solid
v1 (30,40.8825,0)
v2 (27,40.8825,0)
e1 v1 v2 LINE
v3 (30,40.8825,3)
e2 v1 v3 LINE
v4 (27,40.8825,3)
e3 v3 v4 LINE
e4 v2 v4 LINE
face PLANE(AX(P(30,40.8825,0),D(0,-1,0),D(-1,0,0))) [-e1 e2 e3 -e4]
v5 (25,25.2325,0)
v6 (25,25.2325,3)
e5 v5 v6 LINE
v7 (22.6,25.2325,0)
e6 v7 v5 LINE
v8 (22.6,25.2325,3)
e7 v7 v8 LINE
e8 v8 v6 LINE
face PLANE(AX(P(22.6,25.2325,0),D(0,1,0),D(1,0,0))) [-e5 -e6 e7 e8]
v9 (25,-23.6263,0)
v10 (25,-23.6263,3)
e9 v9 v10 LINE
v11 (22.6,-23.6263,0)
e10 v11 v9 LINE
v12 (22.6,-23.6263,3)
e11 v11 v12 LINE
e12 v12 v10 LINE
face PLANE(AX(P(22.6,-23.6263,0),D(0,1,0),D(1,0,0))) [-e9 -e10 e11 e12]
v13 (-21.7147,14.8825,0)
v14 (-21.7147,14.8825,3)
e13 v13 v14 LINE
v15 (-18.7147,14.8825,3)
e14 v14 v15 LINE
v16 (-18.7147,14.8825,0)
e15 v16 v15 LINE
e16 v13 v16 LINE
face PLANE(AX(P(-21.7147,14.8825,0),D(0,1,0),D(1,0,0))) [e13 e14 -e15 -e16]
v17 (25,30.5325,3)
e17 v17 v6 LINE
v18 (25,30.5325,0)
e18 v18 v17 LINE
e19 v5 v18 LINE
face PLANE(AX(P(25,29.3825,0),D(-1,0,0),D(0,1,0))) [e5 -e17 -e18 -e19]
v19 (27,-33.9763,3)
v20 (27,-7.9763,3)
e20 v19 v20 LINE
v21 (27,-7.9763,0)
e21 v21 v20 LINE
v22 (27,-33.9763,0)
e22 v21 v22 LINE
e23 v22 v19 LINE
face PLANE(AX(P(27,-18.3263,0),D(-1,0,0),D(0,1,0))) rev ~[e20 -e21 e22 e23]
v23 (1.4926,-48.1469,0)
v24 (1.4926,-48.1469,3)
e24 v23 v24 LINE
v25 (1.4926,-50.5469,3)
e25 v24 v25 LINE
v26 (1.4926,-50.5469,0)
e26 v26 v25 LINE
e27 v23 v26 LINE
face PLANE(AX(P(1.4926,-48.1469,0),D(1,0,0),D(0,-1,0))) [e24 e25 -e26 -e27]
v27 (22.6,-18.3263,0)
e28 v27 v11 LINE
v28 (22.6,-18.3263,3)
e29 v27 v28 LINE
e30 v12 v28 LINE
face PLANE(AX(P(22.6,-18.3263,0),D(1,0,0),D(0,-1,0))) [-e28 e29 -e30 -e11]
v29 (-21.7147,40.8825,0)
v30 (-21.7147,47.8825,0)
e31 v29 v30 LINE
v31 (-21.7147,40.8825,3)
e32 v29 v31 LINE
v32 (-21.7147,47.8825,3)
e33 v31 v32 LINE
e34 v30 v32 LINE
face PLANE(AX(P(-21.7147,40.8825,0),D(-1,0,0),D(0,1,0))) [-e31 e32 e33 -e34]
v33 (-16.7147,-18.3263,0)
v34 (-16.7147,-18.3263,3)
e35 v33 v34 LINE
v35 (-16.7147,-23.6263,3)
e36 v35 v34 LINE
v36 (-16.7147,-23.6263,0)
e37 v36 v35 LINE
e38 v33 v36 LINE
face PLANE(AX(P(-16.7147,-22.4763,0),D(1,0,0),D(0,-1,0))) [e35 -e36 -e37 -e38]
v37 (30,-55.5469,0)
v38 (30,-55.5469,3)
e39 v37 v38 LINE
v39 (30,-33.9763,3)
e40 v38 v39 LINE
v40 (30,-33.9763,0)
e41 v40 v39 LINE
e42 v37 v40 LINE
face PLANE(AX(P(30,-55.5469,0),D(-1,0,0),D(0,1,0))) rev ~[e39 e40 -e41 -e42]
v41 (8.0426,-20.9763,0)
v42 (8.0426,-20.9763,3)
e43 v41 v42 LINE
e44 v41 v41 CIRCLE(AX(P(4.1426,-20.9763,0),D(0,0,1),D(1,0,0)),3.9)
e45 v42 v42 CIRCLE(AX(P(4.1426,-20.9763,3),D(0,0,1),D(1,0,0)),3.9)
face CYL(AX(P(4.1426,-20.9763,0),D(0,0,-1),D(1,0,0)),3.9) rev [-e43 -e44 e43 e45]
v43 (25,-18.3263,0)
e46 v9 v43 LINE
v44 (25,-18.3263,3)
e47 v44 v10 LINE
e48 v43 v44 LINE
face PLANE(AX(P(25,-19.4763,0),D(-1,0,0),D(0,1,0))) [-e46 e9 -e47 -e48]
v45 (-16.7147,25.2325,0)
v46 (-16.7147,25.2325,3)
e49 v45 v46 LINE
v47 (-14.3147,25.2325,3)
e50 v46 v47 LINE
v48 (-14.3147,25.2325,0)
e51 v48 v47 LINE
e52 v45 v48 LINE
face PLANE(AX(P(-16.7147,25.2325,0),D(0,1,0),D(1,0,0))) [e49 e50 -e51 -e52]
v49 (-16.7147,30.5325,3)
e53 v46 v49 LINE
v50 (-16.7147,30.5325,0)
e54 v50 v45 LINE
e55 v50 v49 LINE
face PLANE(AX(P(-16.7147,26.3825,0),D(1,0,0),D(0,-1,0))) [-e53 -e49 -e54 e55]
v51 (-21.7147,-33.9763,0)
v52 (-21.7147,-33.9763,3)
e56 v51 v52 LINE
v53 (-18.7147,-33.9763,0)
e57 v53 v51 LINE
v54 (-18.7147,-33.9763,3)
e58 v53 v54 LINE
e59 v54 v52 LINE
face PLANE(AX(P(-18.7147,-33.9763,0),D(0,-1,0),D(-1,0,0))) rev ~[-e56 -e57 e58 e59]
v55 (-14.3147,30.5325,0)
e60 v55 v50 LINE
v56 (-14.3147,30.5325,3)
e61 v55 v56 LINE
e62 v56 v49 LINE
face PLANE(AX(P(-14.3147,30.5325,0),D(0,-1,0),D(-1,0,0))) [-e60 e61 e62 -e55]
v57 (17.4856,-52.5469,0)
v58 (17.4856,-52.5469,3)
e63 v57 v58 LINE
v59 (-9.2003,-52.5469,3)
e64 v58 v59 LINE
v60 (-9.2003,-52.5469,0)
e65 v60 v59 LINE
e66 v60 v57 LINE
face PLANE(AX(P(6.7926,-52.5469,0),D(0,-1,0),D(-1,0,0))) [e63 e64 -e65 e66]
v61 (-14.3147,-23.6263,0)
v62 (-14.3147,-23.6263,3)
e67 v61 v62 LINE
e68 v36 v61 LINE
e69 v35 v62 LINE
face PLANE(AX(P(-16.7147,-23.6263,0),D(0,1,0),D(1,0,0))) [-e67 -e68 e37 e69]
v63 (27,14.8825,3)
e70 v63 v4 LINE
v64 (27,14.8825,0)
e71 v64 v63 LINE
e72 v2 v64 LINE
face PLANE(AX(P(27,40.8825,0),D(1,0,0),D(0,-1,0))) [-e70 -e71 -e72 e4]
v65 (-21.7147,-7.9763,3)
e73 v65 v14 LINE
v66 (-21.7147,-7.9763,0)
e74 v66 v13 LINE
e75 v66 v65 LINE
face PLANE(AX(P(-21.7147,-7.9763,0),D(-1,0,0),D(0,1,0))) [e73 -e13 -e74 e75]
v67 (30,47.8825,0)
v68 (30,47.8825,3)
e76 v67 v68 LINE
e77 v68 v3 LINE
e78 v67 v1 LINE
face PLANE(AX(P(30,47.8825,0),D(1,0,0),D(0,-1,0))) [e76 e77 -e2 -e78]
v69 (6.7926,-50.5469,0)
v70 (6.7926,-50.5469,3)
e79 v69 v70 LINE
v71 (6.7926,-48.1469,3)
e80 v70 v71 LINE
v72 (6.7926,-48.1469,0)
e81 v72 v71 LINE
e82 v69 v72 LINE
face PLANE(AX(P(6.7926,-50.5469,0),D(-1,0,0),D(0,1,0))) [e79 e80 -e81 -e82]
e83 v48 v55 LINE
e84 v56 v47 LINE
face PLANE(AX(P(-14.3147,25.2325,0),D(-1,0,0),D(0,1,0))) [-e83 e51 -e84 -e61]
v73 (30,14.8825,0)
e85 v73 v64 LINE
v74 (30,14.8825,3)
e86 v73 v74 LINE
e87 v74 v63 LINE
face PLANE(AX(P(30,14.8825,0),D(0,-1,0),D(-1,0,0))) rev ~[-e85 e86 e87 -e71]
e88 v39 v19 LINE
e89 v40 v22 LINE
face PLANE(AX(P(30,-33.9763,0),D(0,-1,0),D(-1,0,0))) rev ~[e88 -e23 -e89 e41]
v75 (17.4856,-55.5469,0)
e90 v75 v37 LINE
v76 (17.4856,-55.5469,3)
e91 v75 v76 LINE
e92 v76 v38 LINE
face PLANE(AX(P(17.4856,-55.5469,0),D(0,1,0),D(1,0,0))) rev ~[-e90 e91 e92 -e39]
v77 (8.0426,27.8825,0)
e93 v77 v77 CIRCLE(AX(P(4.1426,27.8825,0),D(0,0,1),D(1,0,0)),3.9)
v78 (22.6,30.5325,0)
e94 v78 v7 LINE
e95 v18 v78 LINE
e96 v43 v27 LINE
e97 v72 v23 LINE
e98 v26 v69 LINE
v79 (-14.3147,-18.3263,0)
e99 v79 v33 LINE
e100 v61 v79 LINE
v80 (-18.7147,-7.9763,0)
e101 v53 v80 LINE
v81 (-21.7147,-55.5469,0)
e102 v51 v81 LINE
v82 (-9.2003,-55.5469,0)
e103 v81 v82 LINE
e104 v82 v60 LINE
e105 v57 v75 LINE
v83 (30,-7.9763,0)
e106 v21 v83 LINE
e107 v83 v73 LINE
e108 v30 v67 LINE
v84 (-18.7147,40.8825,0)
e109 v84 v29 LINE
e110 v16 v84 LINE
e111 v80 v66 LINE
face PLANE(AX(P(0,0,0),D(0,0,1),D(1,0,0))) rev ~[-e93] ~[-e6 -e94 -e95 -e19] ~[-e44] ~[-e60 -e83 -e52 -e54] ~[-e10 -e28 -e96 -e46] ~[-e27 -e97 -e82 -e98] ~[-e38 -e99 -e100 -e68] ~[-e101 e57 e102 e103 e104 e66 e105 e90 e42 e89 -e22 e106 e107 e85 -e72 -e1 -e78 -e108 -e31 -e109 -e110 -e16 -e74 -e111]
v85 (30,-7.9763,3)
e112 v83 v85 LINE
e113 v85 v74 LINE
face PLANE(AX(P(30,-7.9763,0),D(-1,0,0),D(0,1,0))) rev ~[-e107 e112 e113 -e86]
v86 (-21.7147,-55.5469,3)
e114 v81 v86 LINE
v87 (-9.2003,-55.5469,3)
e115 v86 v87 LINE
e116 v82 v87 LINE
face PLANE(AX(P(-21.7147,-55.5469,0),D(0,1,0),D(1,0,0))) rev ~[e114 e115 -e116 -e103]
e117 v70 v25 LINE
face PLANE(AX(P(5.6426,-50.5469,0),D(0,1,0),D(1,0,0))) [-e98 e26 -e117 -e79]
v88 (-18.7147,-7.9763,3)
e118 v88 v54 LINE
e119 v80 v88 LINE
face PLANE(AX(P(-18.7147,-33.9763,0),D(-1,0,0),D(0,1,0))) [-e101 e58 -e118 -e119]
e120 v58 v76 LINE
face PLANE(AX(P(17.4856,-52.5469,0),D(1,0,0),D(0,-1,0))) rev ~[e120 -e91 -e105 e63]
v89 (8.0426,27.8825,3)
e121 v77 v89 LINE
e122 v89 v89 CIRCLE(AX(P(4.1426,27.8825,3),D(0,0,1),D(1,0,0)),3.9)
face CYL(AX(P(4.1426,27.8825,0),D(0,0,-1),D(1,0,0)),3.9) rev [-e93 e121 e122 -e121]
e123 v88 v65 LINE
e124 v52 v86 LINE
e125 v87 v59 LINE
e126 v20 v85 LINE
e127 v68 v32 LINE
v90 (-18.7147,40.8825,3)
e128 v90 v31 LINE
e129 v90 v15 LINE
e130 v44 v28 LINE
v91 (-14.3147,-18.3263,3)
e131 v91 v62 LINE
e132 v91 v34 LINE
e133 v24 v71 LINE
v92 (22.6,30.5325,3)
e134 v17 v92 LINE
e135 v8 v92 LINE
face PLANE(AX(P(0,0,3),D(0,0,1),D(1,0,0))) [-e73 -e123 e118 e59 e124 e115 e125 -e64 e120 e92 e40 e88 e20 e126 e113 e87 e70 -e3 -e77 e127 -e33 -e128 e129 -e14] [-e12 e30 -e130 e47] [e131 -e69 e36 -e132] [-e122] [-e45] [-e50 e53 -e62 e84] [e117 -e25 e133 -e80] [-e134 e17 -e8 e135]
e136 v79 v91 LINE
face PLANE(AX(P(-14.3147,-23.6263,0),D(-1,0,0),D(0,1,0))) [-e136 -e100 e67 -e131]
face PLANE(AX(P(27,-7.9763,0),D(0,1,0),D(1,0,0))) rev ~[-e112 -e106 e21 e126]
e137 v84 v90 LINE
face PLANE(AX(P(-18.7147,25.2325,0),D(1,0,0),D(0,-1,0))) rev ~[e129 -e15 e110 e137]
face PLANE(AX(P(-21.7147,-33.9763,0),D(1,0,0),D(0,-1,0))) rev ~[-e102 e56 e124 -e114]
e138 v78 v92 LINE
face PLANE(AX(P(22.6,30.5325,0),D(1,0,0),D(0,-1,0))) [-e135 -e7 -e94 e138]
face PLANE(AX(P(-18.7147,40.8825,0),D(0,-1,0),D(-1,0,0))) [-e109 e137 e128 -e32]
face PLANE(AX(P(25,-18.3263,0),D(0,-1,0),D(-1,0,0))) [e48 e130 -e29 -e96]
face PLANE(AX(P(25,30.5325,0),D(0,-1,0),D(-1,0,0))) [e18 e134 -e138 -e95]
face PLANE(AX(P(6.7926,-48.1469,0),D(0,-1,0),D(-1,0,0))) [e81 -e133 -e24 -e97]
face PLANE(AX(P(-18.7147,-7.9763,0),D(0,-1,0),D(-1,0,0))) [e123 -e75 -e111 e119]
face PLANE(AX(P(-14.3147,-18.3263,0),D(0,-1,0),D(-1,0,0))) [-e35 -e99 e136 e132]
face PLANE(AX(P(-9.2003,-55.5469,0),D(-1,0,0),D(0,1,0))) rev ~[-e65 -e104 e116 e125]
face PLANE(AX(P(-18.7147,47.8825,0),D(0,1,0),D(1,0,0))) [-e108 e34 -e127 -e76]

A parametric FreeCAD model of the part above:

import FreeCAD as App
import Part
import Sketcher
from FreeCAD import Vector


def add_polygon(sketch, points):
    """Adds a closed chain of lines whose ends are joined by coincident constraints."""
    first, n = sketch.GeometryCount, len(points)
    for a, b in zip(points, points[1:] + points[:1]):
        sketch.addGeometry(Part.LineSegment(App.Vector(*a, 0), App.Vector(*b, 0)), False)
    for i in range(n):
        sketch.addConstraint(Sketcher.Constraint("Coincident", first + i, 2, first + (i + 1) % n, 1))

doc = App.newDocument("Part")
body = doc.addObject("PartDesign::Body", "Body")

# Sketch on XY plane
sketch1 = body.newObject("Sketcher::SketchObject", "Sketch")
sketch1.AttachmentSupport = (doc.getObject("XY_Plane"), [""])
sketch1.MapMode = "FlatFace"
add_polygon(sketch1, [(17.5, -52.5), (17.5, -55.5), (30, -55.5), (30, -34), (27, -34), (27, -8), (30, -8), (30, 14.9), (27, 14.9), (27, 40.9), (30, 40.9), (30, 47.9), (-21.7, 47.9), (-21.7, 40.9), (-18.7, 40.9), (-18.7, 14.9), (-21.7, 14.9), (-21.7, -8), (-18.7, -8), (-18.7, -34), (-21.7, -34), (-21.7, -55.5), (-9.2, -55.5), (-9.2, -52.5)])  # lines 0-23
add_polygon(sketch1, [(6.8, -50.5), (1.5, -50.5), (1.5, -48.1), (6.8, -48.1)])  # lines 24-27
add_polygon(sketch1, [(-16.7, -23.6), (-16.7, -18.3), (-14.3, -18.3), (-14.3, -23.6)])  # lines 28-31
sketch1.addGeometry(Part.Circle(Vector(4.1, -21, 0), Vector(0, 0, 1), 3.9), False)  # 32
add_polygon(sketch1, [(25, -18.3), (25, -23.6), (22.6, -23.6), (22.6, -18.3)])  # lines 33-36
add_polygon(sketch1, [(-16.7, 25.2), (-16.7, 30.5), (-14.3, 30.5), (-14.3, 25.2)])  # lines 37-40
sketch1.addGeometry(Part.Circle(Vector(4.1, 27.9, 0), Vector(0, 0, 1), 3.9), False)  # 41
add_polygon(sketch1, [(25, 30.5), (25, 25.2), (22.6, 25.2), (22.6, 30.5)])  # lines 42-45
sketch1.addConstraint(Sketcher.Constraint("Vertical", 0))
sketch1.addConstraint(Sketcher.Constraint("Horizontal", 1))
sketch1.addConstraint(Sketcher.Constraint("Vertical", 2))
sketch1.addConstraint(Sketcher.Constraint("Horizontal", 3))
sketch1.addConstraint(Sketcher.Constraint("Vertical", 4))
sketch1.addConstraint(Sketcher.Constraint("Horizontal", 5))
sketch1.addConstraint(Sketcher.Constraint("Vertical", 6))
sketch1.addConstraint(Sketcher.Constraint("Horizontal", 7))
sketch1.addConstraint(Sketcher.Constraint("Vertical", 8))
sketch1.addConstraint(Sketcher.Constraint("Horizontal", 9))
sketch1.addConstraint(Sketcher.Constraint("Vertical", 10))
sketch1.addConstraint(Sketcher.Constraint("Horizontal", 11))
sketch1.addConstraint(Sketcher.Constraint("Vertical", 12))
sketch1.addConstraint(Sketcher.Constraint("Horizontal", 13))
sketch1.addConstraint(Sketcher.Constraint("Vertical", 14))
sketch1.addConstraint(Sketcher.Constraint("Horizontal", 15))
sketch1.addConstraint(Sketcher.Constraint("Vertical", 16))
sketch1.addConstraint(Sketcher.Constraint("Horizontal", 17))
sketch1.addConstraint(Sketcher.Constraint("Vertical", 18))
sketch1.addConstraint(Sketcher.Constraint("Horizontal", 19))
sketch1.addConstraint(Sketcher.Constraint("Vertical", 20))
sketch1.addConstraint(Sketcher.Constraint("Horizontal", 21))
sketch1.addConstraint(Sketcher.Constraint("Vertical", 22))
sketch1.addConstraint(Sketcher.Constraint("Horizontal", 23))
sketch1.addConstraint(Sketcher.Constraint("Horizontal", 24))
sketch1.addConstraint(Sketcher.Constraint("Vertical", 25))
sketch1.addConstraint(Sketcher.Constraint("Horizontal", 26))
sketch1.addConstraint(Sketcher.Constraint("Vertical", 27))
sketch1.addConstraint(Sketcher.Constraint("Vertical", 28))
sketch1.addConstraint(Sketcher.Constraint("Horizontal", 29))
sketch1.addConstraint(Sketcher.Constraint("Vertical", 30))
sketch1.addConstraint(Sketcher.Constraint("Horizontal", 31))
sketch1.addConstraint(Sketcher.Constraint("Vertical", 33))
sketch1.addConstraint(Sketcher.Constraint("Horizontal", 34))
sketch1.addConstraint(Sketcher.Constraint("Vertical", 35))
sketch1.addConstraint(Sketcher.Constraint("Horizontal", 36))
sketch1.addConstraint(Sketcher.Constraint("Vertical", 37))
sketch1.addConstraint(Sketcher.Constraint("Horizontal", 38))
sketch1.addConstraint(Sketcher.Constraint("Vertical", 39))
sketch1.addConstraint(Sketcher.Constraint("Horizontal", 40))
sketch1.addConstraint(Sketcher.Constraint("Vertical", 42))
sketch1.addConstraint(Sketcher.Constraint("Horizontal", 43))
sketch1.addConstraint(Sketcher.Constraint("Vertical", 44))
sketch1.addConstraint(Sketcher.Constraint("Horizontal", 45))
sketch1.addConstraint(Sketcher.Constraint("Equal", 32, 41))
sketch1.addConstraint(Sketcher.Constraint("Horizontal", 9, 2, 12, 2))
sketch1.addConstraint(Sketcher.Constraint("Horizontal", 7, 2, 14, 2))
sketch1.addConstraint(Sketcher.Constraint("Horizontal", 5, 2, 16, 2))
sketch1.addConstraint(Sketcher.Constraint("Horizontal", 3, 2, 18, 2))
sketch1.addConstraint(Sketcher.Constraint("Horizontal", 1, 2, 20, 2))
sketch1.addConstraint(Sketcher.Constraint("Horizontal", 31, 2, 33, 2))
sketch1.addConstraint(Sketcher.Constraint("Horizontal", 29, 2, 35, 2))
sketch1.addConstraint(Sketcher.Constraint("Horizontal", 40, 2, 42, 2))
sketch1.addConstraint(Sketcher.Constraint("Horizontal", 38, 2, 44, 2))
sketch1.addConstraint(Sketcher.Constraint("Vertical", 32, 3, 41, 3))
sketch1.addConstraint(Sketcher.Constraint("Vertical", 2, 2, 5, 2))
sketch1.addConstraint(Sketcher.Constraint("Vertical", 4, 2, 7, 2))
sketch1.addConstraint(Sketcher.Constraint("Vertical", 6, 2, 9, 2))
sketch1.addConstraint(Sketcher.Constraint("Vertical", 12, 2, 15, 2))
sketch1.addConstraint(Sketcher.Constraint("Vertical", 14, 2, 17, 2))
sketch1.addConstraint(Sketcher.Constraint("Vertical", 16, 2, 19, 2))
sketch1.addConstraint(Sketcher.Constraint("Vertical", 31, 2, 37, 2))
sketch1.addConstraint(Sketcher.Constraint("Vertical", 30, 2, 38, 2))
sketch1.addConstraint(Sketcher.Constraint("Vertical", 36, 2, 42, 2))
sketch1.addConstraint(Sketcher.Constraint("Vertical", 35, 2, 43, 2))
sketch1.addConstraint(Sketcher.Constraint("Equal", 9, 13))
sketch1.addConstraint(Sketcher.Constraint("Equal", 1, 21))
sketch1.addConstraint(Sketcher.Constraint("Equal", 31, 34))
sketch1.addConstraint(Sketcher.Constraint("Equal", 19, 0))
sketch1.addConstraint(Sketcher.Constraint("Equal", 4, 8))
sketch1.addConstraint(Sketcher.Constraint("Equal", 45, 25))
sketch1.addConstraint(Sketcher.Constraint("Equal", 26, 28))
sketch1.addConstraint(Sketcher.Constraint("Equal", 35, 37))
sketch1.addConstraint(Sketcher.Constraint("DistanceX", 3, 2, 3, 1, 3.0))
sketch1.addConstraint(Sketcher.Constraint("Diameter", 32, 7.8))
sketch1.addConstraint(Sketcher.Constraint("DistanceY", 4, 1, 4, 2, 26.0))
sketch1.addConstraint(Sketcher.Constraint("DistanceY", 10, 1, 10, 2, 7.0))
sketch1.addConstraint(Sketcher.Constraint("DistanceX", 24, 2, 24, 1, 5.3))
sketch1.addConstraint(Sketcher.Constraint("DistanceX", 29, 1, 29, 2, 2.4))
sketch1.addConstraint(Sketcher.Constraint("DistanceX", -1, 1, 1, 2, 30.0))
sketch1.addConstraint(Sketcher.Constraint("DistanceX", -1, 1, 33, 2, 25.0))
sketch1.addConstraint(Sketcher.Constraint("DistanceY", 2, 2, 32, 3, 13.0))
sketch1.addConstraint(Sketcher.Constraint("DistanceY", 6, 2, 41, 3, 13.0))
sketch1.addConstraint(Sketcher.Constraint("DistanceY", 22, 2, 24, 2, 2.0))
sketch1.addConstraint(Sketcher.Constraint("DistanceX", 17, 2, 28, 2, 2.0))
sketch1.addConstraint(Sketcher.Constraint("DistanceX", 23, 1, 23, 2, 26.686))
sketch1.addConstraint(Sketcher.Constraint("DistanceY", 28, 2, 17, 2, 10.35))
sketch1.addConstraint(Sketcher.Constraint("DistanceY", 37, 2, 13, 2, 10.35))
sketch1.addConstraint(Sketcher.Constraint("DistanceX", 1, 1, 1, 2, 12.5144))
sketch1.addConstraint(Sketcher.Constraint("DistanceY", 2, 1, 2, 2, 21.5706))
sketch1.addConstraint(Sketcher.Constraint("DistanceY", 6, 1, 6, 2, 22.8588))
sketch1.addConstraint(Sketcher.Constraint("DistanceY", 0, 2, -1, 1, 55.547))
sketch1.addConstraint(Sketcher.Constraint("DistanceX", 32, 3, 0, 2, 13.343))
sketch1.addConstraint(Sketcher.Constraint("DistanceX", 22, 2, 24, 2, 10.693))
pad1 = body.newObject("PartDesign::Pad", "Pad")
pad1.Profile = sketch1
pad1.Length = 3

doc.recompute()
